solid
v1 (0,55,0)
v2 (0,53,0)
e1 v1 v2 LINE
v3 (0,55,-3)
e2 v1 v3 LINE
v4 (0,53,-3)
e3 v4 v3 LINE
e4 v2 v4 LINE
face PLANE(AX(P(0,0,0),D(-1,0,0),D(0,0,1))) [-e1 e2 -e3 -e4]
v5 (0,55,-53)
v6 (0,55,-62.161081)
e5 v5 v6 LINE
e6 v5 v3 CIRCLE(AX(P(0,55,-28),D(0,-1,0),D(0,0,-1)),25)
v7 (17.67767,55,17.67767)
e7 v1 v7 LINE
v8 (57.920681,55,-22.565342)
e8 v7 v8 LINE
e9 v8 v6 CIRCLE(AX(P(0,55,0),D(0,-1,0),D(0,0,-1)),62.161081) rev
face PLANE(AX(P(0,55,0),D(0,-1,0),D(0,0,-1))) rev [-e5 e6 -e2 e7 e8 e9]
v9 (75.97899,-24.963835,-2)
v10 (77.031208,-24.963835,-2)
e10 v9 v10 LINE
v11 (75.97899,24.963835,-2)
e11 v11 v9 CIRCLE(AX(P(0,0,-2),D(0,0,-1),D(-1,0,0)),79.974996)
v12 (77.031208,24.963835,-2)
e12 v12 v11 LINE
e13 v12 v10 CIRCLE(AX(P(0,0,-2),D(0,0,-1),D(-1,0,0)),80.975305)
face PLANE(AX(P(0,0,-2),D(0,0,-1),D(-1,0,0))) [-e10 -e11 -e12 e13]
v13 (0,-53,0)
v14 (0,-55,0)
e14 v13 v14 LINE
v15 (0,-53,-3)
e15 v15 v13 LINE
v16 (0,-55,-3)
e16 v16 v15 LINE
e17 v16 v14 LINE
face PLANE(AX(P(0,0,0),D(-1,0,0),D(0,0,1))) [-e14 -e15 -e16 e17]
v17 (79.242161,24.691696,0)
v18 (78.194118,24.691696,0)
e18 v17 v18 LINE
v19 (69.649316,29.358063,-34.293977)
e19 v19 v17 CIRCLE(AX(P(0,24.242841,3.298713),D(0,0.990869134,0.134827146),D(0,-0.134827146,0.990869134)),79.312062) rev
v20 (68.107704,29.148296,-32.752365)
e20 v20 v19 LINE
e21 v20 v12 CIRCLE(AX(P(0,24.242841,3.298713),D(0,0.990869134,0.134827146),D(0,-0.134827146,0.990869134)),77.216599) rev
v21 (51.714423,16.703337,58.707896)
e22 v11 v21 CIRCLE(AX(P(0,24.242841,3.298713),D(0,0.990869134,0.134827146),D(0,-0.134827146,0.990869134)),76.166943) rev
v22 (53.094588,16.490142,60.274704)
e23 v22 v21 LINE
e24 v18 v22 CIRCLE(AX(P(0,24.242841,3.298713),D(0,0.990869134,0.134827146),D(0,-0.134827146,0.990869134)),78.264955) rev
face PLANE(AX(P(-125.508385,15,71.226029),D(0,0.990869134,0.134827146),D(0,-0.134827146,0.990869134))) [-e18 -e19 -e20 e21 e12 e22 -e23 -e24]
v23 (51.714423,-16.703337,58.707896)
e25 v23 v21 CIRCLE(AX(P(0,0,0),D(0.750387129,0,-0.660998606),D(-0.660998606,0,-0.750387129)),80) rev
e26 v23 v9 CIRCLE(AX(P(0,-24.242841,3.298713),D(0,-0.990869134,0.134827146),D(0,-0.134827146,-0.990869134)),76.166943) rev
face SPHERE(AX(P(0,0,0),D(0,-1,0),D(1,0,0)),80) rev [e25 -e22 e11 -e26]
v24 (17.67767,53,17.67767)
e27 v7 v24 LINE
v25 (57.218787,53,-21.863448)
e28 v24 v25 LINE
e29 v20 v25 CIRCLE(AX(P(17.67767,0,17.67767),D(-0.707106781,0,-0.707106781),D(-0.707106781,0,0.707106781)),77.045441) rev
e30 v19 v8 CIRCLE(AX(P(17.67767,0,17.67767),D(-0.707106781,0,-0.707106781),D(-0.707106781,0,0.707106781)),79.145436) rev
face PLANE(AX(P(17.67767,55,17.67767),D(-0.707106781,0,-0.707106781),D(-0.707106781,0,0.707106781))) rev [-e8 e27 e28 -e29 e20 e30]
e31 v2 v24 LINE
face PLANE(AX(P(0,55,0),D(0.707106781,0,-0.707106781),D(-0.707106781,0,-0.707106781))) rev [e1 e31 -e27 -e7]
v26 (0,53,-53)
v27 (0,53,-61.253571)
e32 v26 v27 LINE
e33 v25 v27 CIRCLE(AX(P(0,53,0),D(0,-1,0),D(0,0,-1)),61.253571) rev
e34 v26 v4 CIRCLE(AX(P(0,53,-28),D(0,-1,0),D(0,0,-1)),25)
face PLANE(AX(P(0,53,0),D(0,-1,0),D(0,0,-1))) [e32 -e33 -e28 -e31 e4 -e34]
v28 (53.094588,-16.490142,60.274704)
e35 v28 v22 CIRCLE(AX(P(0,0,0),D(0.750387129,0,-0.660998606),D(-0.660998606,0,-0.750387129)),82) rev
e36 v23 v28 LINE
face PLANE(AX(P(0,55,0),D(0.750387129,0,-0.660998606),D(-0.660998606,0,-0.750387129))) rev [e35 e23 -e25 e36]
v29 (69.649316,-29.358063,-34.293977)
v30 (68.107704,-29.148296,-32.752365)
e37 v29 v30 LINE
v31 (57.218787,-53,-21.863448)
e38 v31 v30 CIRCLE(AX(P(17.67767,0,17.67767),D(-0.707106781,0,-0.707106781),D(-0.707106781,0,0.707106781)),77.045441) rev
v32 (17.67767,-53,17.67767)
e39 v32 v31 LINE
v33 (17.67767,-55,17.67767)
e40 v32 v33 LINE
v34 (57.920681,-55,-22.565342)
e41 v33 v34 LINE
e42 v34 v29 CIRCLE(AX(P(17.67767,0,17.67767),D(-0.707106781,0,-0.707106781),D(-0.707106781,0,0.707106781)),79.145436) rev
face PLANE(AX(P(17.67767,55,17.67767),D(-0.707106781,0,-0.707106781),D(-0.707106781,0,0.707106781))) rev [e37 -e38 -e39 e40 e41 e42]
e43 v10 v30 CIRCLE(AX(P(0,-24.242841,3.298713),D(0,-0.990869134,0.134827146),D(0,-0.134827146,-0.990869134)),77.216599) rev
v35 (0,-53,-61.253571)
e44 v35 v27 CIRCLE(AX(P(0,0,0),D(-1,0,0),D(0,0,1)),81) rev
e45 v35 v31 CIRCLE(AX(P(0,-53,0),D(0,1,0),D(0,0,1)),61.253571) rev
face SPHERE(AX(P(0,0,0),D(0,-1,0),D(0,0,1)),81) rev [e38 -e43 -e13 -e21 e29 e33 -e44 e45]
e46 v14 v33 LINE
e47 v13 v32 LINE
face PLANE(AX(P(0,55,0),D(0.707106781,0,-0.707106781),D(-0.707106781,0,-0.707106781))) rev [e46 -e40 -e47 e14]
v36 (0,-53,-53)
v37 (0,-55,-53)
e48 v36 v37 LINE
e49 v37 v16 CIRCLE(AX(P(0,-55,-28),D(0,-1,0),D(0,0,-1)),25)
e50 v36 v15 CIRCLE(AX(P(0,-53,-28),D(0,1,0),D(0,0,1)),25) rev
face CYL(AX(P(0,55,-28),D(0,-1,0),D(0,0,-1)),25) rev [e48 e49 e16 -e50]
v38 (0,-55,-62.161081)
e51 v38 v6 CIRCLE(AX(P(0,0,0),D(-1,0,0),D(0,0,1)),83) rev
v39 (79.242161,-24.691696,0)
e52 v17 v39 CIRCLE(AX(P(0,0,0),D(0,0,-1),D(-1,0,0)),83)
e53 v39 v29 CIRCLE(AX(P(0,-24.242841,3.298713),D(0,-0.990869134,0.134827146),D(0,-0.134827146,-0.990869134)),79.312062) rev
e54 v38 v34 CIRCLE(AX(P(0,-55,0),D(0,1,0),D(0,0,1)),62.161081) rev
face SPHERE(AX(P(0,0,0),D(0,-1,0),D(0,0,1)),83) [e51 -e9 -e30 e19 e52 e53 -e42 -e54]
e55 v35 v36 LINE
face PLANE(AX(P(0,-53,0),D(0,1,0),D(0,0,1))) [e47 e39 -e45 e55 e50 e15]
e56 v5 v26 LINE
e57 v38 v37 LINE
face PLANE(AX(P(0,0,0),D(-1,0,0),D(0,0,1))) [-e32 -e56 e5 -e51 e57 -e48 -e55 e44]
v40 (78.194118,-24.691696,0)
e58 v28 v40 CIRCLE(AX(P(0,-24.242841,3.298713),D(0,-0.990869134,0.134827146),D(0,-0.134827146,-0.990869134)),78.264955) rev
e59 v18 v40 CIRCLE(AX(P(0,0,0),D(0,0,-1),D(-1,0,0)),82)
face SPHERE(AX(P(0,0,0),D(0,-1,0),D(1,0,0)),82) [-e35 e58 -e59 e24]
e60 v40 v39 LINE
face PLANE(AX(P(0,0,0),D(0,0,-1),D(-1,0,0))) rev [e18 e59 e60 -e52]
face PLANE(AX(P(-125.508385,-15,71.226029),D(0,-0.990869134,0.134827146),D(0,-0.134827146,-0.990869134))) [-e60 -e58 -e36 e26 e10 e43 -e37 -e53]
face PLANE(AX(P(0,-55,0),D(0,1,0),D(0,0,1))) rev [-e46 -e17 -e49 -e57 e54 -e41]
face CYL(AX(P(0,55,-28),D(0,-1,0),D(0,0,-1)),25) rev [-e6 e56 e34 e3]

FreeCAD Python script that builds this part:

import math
import FreeCAD as App
import Part
import Sketcher

V = App.Vector
Q = App.Units.Quantity


def faces_at(feature, points):
    """Names of the faces that lie closest to the given points."""
    faces = feature.Shape.Faces
    near = lambda p: min(range(len(faces)), key=lambda i: faces[i].distToShape(Part.Vertex(*p))[0])
    return sorted({f"Face{near(p) + 1}" for p in points})


def add_polygon(sketch, points):
    """Adds a closed chain of lines whose ends are joined by coincident constraints."""
    first, n = sketch.GeometryCount, len(points)
    for a, b in zip(points, points[1:] + points[:1]):
        sketch.addGeometry(Part.LineSegment(App.Vector(*a, 0), App.Vector(*b, 0)), False)
    for i in range(n):
        sketch.addConstraint(Sketcher.Constraint("Coincident", first + i, 2, first + (i + 1) % n, 1))

doc = App.newDocument("Part")
body = doc.addObject("PartDesign::Body", "Body")

# Sketch on YZ plane
sketch1 = body.newObject("Sketcher::SketchObject", "Sketch")
sketch1.AttachmentSupport = (doc.getObject("YZ_Plane"), [""])
sketch1.MapMode = "FlatFace"
sketch1.addGeometry([
    Part.LineSegment(V(-55, 0, 0), V(55, 0, 0)),
    Part.LineSegment(V(55, 0, 0), V(55, 76.601538, 0)),
    Part.ArcOfCircle(Part.Circle(V(0, 0, 0), V(0, 0, 1), 94.301621), math.radians(54.321606), math.radians(125.678394)),
    Part.LineSegment(V(-55, 76.601538, 0), V(-55, 0, 0)),
], False)
sketch1.addConstraint([
    Sketcher.Constraint("Coincident", 0, 2, 1, 1),
    Sketcher.Constraint("Coincident", 1, 2, 2, 1),
    Sketcher.Constraint("Coincident", 2, 2, 3, 1),
    Sketcher.Constraint("Coincident", 3, 2, 0, 1),
    Sketcher.Constraint("Horizontal", 0),
    Sketcher.Constraint("Vertical", 1),
    Sketcher.Constraint("Vertical", 3),
    Sketcher.Constraint("Coincident", 2, 3, -1, 1),
    Sketcher.Constraint("Symmetric", 0, 2, 3, 2, -1, 1),
    Sketcher.Constraint("DistanceX", 0, 1, 0, 2, Q("110 mm")),
    Sketcher.Constraint("Radius", 2, Q("94.301621 mm")),
])
revolution = body.newObject("PartDesign::Revolution", "Revolution")
revolution.Profile = sketch1
revolution.ReferenceAxis = (sketch1, ["H_Axis"])
revolution.Angle = 180

# Sketch on XZ plane
sketch2 = body.newObject("Sketcher::SketchObject", "Sketch001")
sketch2.AttachmentSupport = (doc.getObject("XZ_Plane"), [""])
sketch2.MapMode = "FlatFace"
sketch2.AttachmentOffset = App.Placement(V(0, 0, 55), App.Rotation())
add_polygon(sketch2, [(0, 0), (17.67767, 17.67767), (110.975281, -75.619942), (110.975281, 155.951541), (-110.127783, 155.951541), (-110.127783, 0)])  # lines 0-5
sketch2.addConstraint([
    Sketcher.Constraint("Vertical", 2),
    Sketcher.Constraint("Horizontal", 3),
    Sketcher.Constraint("Vertical", 4),
    Sketcher.Constraint("Horizontal", 5),
    Sketcher.Constraint("Coincident", 5, 2, -1, 1),
    Sketcher.Constraint("Perpendicular", 0, 1),
    Sketcher.Constraint("Angle", 0, Q("45 deg")),
    Sketcher.Constraint("Distance", 0, Q("25 mm")),
    Sketcher.Constraint("DistanceY", 4, 2, 4, 1, Q("155.951541 mm")),
    Sketcher.Constraint("DistanceX", 3, 2, 3, 1, Q("221.103064 mm")),
    Sketcher.Constraint("DistanceX", 5, 1, 5, 2, Q("110.127783 mm")),
])
pocket1 = body.newObject("PartDesign::Pocket", "Pocket")
pocket1.Profile = sketch2
pocket1.Type = "ThroughAll"

# Sketch on YZ plane
sketch3 = body.newObject("Sketcher::SketchObject", "Sketch002")
sketch3.AttachmentSupport = (doc.getObject("YZ_Plane"), [""])
sketch3.MapMode = "FlatFace"
sketch3.AttachmentOffset = App.Placement(V(0, 0, 100), App.Rotation())
add_polygon(sketch3, [(15, 71.226029), (-15, 71.226029), (-30, -39.01169), (30, -39.01169)])  # lines 0-3
sketch3.addConstraint([
    Sketcher.Constraint("Horizontal", 0),
    Sketcher.Constraint("Horizontal", 2),
    Sketcher.Constraint("Equal", 1, 3),
    Sketcher.Constraint("DistanceX", 0, 2, 0, 1, Q("30 mm")),
    Sketcher.Constraint("DistanceX", 2, 1, 2, 2, Q("60 mm")),
    Sketcher.Constraint("DistanceX", 0, 2, -1, 1, Q("15 mm")),
    Sketcher.Constraint("Distance", 1, Q("111.25356 mm")),
    Sketcher.Constraint("DistanceY", -1, 1, 0, 2, Q("71.226029 mm")),
])
pad1 = body.newObject("PartDesign::Pad", "Pad")
pad1.Profile = sketch3
pad1.Length = 100
pad1.Reversed = True

# Sketch on YZ plane
sketch4 = body.newObject("Sketcher::SketchObject", "Sketch003")
sketch4.AttachmentSupport = (doc.getObject("YZ_Plane"), [""])
sketch4.MapMode = "FlatFace"
sketch4.addGeometry([
    Part.LineSegment(V(58.010753, 59.361204, 0), V(58.010753, 134.505557, 0)),
    Part.ArcOfCircle(Part.Circle(V(0, 0, 0), V(0, 0, 1), 146.482054), math.radians(66.67), math.radians(113.33)),
    Part.LineSegment(V(-58.010753, 134.505557, 0), V(-58.010753, 59.361204, 0)),
    Part.ArcOfCircle(Part.Circle(V(0, 0, 0), V(0, 0, 1), 83), math.radians(45.659201), math.radians(134.340799)),
], False)
sketch4.addConstraint([
    Sketcher.Constraint("Coincident", 0, 2, 1, 1),
    Sketcher.Constraint("Coincident", 1, 2, 2, 1),
    Sketcher.Constraint("Coincident", 2, 2, 3, 2),
    Sketcher.Constraint("Coincident", 3, 1, 0, 1),
    Sketcher.Constraint("Vertical", 0),
    Sketcher.Constraint("Vertical", 2),
    Sketcher.Constraint("Coincident", 1, 3, -1, 1),
    Sketcher.Constraint("Coincident", 3, 3, -1, 1),
    Sketcher.Constraint("Horizontal", 0, 2, 1, 2),
    Sketcher.Constraint("Radius", 3, Q("83 mm")),
    Sketcher.Constraint("Radius", 1, Q("146.482054 mm")),
    Sketcher.Constraint("DistanceY", 0, 1, 0, 2, Q("75.144352 mm")),
])
groove = body.newObject("PartDesign::Groove", "Groove")
groove.Profile = sketch4
groove.ReferenceAxis = (sketch4, ["H_Axis"])
groove.Angle = 360

# Sketch on XZ plane
sketch5 = body.newObject("Sketcher::SketchObject", "Sketch004")
sketch5.AttachmentSupport = (doc.getObject("XZ_Plane"), [""])
sketch5.MapMode = "FlatFace"
sketch5.AttachmentOffset = App.Placement(V(0, 0, 55), App.Rotation())
add_polygon(sketch5, [(0, 0), (70.470143, 80), (-50.338034, 80), (-50.338034, 0)])  # lines 0-3
sketch5.addConstraint([
    Sketcher.Constraint("Horizontal", 1),
    Sketcher.Constraint("Vertical", 2),
    Sketcher.Constraint("Horizontal", 3),
    Sketcher.Constraint("Coincident", 3, 2, -1, 1),
    Sketcher.Constraint("DistanceY", 2, 2, 2, 1, Q("80 mm")),
    Sketcher.Constraint("DistanceX", 1, 2, 1, 1, Q("120.808178 mm")),
    Sketcher.Constraint("DistanceX", 3, 1, 3, 2, Q("50.338034 mm")),
])
pocket2 = body.newObject("PartDesign::Pocket", "Pocket001")
pocket2.Profile = sketch5
pocket2.Type = "ThroughAll"

# Sketch on YZ plane
sketch6 = body.newObject("Sketcher::SketchObject", "Sketch005")
sketch6.AttachmentSupport = (doc.getObject("YZ_Plane"), [""])
sketch6.MapMode = "FlatFace"
sketch6.addGeometry([
    Part.LineSegment(V(65.760328, 48.985501, 0), V(65.760328, 101.43758, 0)),
    Part.ArcOfCircle(Part.Circle(V(0, 0, 0), V(0, 0, 1), 120.888392), math.radians(57.045317), math.radians(122.954683)),
    Part.LineSegment(V(-65.760328, 101.43758, 0), V(-65.760328, 48.985501, 0)),
    Part.ArcOfCircle(Part.Circle(V(0, 0, 0), V(0, 0, 1), 82), math.radians(36.682781), math.radians(143.317219)),
], False)
sketch6.addConstraint([
    Sketcher.Constraint("Coincident", 0, 2, 1, 1),
    Sketcher.Constraint("Coincident", 1, 2, 2, 1),
    Sketcher.Constraint("Coincident", 2, 2, 3, 2),
    Sketcher.Constraint("Coincident", 3, 1, 0, 1),
    Sketcher.Constraint("Vertical", 0),
    Sketcher.Constraint("Vertical", 2),
    Sketcher.Constraint("Coincident", 1, 3, -1, 1),
    Sketcher.Constraint("Coincident", 3, 3, -1, 1),
    Sketcher.Constraint("Horizontal", 0, 2, 1, 2),
    Sketcher.Constraint("Radius", 3, Q("82 mm")),
    Sketcher.Constraint("Radius", 1, Q("120.888392 mm")),
    Sketcher.Constraint("DistanceY", 0, 1, 0, 2, Q("52.45208 mm")),
])
groove2 = body.newObject("PartDesign::Groove", "Groove001")
groove2.Profile = sketch6
groove2.ReferenceAxis = (sketch6, ["H_Axis"])
groove2.Angle = 90

# Sketch on XZ plane
sketch7 = body.newObject("Sketcher::SketchObject", "Sketch006")
sketch7.AttachmentSupport = (doc.getObject("XZ_Plane"), [""])
sketch7.MapMode = "FlatFace"
sketch7.AttachmentOffset = App.Placement(V(0, 0, 55), App.Rotation())
sketch7.addGeometry(Part.Circle(V(0, -28, 0), V(0, 0, 1), 25), False)
sketch7.addConstraint([
    Sketcher.Constraint("PointOnObject", 0, 3, -2),
    Sketcher.Constraint("Diameter", 0, Q("50 mm")),
    Sketcher.Constraint("DistanceY", 0, 3, -1, 1, Q("28 mm")),
])
pocket3 = body.newObject("PartDesign::Pocket", "Pocket002")
pocket3.Profile = sketch7
pocket3.Type = "ThroughAll"
doc.recompute()

thickness = body.newObject("PartDesign::Thickness", "Thickness")
thickness.Base = (pocket3, faces_at(pocket3, [
    (0, 0, -68),
    (25, 0, -28),
    (8.839, 38.643, 8.839),
    (8.839, -38.643, 8.839),
    (39.621, 22.924, 12.99),
    (39.621, -22.924, 12.99),
    (43.663, 38.643, -8.308),
    (43.663, -38.643, -8.308),
    (0, 0, -1.5),
    (27.101, 0, 30.766),
]))
thickness.Value = 2
thickness.Reversed = True
thickness.Join = "Intersection"

doc.recompute()
